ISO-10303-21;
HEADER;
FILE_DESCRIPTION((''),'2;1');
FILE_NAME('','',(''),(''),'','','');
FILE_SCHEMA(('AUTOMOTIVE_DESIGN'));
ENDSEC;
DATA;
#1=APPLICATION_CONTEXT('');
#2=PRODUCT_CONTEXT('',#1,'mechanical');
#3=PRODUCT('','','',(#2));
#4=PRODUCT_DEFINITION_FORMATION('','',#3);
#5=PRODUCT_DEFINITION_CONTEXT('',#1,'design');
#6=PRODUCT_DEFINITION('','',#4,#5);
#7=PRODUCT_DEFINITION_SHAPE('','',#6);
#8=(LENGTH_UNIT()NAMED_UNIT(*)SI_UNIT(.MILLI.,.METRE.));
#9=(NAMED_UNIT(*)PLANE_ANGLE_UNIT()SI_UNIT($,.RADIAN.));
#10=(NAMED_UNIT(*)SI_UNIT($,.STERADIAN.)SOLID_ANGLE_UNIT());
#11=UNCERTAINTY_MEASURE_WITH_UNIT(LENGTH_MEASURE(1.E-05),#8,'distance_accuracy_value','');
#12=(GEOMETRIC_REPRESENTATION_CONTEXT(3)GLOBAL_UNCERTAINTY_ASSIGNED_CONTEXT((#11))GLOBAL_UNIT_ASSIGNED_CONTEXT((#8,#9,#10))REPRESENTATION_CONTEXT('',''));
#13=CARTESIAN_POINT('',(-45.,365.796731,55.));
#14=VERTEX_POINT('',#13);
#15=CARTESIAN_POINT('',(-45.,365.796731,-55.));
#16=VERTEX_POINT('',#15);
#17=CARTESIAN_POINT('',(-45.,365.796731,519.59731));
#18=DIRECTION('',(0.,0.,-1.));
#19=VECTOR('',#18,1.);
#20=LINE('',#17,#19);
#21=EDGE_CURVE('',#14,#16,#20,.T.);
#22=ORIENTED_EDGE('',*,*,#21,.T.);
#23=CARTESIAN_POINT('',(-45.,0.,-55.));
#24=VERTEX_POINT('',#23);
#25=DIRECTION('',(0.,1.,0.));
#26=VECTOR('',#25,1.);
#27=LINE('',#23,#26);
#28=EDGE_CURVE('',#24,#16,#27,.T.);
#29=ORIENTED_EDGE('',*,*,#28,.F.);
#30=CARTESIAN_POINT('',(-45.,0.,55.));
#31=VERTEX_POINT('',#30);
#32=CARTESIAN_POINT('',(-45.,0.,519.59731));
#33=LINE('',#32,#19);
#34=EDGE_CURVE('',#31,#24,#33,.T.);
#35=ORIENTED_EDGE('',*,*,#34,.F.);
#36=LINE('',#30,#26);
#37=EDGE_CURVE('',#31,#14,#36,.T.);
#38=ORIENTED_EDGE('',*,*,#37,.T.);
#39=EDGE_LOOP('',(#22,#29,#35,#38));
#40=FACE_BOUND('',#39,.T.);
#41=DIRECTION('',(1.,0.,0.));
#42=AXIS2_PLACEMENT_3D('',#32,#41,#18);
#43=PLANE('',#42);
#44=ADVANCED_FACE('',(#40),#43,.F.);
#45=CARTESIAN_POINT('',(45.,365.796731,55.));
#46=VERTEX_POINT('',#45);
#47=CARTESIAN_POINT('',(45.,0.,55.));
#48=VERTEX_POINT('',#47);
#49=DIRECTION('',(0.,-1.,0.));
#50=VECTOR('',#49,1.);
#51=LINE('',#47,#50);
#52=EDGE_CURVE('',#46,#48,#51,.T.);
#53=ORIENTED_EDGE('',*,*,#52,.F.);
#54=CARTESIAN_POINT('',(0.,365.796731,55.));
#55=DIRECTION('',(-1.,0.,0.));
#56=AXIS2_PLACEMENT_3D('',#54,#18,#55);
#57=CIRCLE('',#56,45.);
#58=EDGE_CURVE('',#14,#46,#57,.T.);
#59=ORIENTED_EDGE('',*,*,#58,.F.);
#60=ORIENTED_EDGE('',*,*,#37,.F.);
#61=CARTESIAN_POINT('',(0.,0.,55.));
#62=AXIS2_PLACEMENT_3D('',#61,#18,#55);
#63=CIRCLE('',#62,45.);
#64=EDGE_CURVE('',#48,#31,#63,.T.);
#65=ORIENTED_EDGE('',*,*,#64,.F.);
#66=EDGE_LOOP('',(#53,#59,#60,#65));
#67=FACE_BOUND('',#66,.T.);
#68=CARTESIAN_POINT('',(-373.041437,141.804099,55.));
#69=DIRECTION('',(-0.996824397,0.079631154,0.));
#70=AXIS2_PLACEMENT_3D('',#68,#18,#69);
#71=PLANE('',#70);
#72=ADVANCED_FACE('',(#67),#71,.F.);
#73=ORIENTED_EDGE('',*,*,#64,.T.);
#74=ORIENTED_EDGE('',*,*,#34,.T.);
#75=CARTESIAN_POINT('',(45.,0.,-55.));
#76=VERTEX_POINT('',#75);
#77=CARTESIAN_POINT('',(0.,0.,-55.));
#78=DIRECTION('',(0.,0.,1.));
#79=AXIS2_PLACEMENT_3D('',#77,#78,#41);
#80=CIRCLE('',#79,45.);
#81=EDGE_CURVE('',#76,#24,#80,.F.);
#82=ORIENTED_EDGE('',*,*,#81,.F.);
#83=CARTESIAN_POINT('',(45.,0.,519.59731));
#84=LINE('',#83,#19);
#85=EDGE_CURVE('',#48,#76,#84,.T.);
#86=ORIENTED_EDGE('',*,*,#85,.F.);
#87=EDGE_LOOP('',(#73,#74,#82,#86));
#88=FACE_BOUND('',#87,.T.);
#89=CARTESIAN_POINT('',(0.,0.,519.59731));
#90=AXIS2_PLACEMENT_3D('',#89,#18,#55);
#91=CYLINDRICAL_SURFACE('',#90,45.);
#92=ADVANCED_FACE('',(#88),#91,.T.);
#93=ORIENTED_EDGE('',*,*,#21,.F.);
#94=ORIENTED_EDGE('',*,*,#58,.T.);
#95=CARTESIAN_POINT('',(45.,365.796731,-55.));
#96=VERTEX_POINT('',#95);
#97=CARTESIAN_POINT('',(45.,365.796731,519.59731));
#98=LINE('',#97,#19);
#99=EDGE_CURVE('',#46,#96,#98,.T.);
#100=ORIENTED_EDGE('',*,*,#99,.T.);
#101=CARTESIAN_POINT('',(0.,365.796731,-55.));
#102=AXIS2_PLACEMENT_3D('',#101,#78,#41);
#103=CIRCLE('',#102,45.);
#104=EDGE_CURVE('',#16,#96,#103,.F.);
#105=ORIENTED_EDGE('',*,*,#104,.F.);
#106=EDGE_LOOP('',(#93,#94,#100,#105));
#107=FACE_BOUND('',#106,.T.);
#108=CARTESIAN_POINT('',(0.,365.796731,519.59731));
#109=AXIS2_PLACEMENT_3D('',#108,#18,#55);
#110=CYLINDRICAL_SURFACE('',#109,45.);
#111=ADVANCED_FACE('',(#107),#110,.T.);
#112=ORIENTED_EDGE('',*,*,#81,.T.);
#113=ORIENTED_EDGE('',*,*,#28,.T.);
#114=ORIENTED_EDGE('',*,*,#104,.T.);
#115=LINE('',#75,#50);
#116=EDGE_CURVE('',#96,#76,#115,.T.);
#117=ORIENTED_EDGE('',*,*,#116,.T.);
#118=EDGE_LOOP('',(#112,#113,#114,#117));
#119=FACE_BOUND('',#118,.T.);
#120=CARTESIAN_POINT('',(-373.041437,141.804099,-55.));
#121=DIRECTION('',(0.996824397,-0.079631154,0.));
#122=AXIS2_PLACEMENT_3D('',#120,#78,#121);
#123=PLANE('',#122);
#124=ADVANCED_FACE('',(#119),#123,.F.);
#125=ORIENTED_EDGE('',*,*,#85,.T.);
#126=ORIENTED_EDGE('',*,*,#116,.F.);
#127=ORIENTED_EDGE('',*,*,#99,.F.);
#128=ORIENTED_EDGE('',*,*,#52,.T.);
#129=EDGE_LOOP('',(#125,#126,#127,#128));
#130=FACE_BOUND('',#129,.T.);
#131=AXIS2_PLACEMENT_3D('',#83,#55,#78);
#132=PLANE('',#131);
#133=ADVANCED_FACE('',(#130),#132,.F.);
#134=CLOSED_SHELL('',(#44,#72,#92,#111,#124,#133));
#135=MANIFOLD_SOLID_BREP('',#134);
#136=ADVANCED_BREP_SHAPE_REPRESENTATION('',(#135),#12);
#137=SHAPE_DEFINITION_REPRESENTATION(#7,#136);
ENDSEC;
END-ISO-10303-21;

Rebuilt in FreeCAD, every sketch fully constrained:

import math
import FreeCAD as App
import Part
import Sketcher
from FreeCAD import Vector
Q = App.Units.Quantity

doc = App.newDocument("Part")
body = doc.addObject("PartDesign::Body", "Body")

# Sketch on XY plane
sketch1 = body.newObject("Sketcher::SketchObject", "Sketch")
sketch1.AttachmentSupport = (doc.getObject("XY_Plane"), [""])
sketch1.MapMode = "FlatFace"
sketch1.addGeometry(Part.LineSegment(Vector(-45, 366, 0), Vector(-45, 0, 0)), False)
sketch1.addGeometry(Part.ArcOfCircle(Part.Circle(Vector(0, 0, 0), Vector(0, 0, 1), 45), math.radians(180), math.radians(360)), False)
sketch1.addGeometry(Part.LineSegment(Vector(45, 0, 0), Vector(45, 366, 0)), False)
sketch1.addGeometry(Part.ArcOfCircle(Part.Circle(Vector(0, 366, 0), Vector(0, 0, 1), 45), math.radians(0), math.radians(180)), False)
sketch1.addConstraint(Sketcher.Constraint("Tangent", 0, 2, 1, 1))
sketch1.addConstraint(Sketcher.Constraint("Tangent", 1, 2, 2, 1))
sketch1.addConstraint(Sketcher.Constraint("Tangent", 2, 2, 3, 1))
sketch1.addConstraint(Sketcher.Constraint("Tangent", 3, 2, 0, 1))
sketch1.addConstraint(Sketcher.Constraint("Vertical", 0))
sketch1.addConstraint(Sketcher.Constraint("Vertical", 2))
sketch1.addConstraint(Sketcher.Constraint("Coincident", 1, 3, -1, 1))
sketch1.addConstraint(Sketcher.Constraint("Radius", 1, Q("45 mm")))
sketch1.addConstraint(Sketcher.Constraint("DistanceY", 0, 2, 0, 1, Q("365.796731 mm")))
pad1 = body.newObject("PartDesign::Pad", "Pad")
pad1.Profile = sketch1
pad1.Type = "TwoLengths"
pad1.Length = 55
pad1.Length2 = 55

doc.recompute()
